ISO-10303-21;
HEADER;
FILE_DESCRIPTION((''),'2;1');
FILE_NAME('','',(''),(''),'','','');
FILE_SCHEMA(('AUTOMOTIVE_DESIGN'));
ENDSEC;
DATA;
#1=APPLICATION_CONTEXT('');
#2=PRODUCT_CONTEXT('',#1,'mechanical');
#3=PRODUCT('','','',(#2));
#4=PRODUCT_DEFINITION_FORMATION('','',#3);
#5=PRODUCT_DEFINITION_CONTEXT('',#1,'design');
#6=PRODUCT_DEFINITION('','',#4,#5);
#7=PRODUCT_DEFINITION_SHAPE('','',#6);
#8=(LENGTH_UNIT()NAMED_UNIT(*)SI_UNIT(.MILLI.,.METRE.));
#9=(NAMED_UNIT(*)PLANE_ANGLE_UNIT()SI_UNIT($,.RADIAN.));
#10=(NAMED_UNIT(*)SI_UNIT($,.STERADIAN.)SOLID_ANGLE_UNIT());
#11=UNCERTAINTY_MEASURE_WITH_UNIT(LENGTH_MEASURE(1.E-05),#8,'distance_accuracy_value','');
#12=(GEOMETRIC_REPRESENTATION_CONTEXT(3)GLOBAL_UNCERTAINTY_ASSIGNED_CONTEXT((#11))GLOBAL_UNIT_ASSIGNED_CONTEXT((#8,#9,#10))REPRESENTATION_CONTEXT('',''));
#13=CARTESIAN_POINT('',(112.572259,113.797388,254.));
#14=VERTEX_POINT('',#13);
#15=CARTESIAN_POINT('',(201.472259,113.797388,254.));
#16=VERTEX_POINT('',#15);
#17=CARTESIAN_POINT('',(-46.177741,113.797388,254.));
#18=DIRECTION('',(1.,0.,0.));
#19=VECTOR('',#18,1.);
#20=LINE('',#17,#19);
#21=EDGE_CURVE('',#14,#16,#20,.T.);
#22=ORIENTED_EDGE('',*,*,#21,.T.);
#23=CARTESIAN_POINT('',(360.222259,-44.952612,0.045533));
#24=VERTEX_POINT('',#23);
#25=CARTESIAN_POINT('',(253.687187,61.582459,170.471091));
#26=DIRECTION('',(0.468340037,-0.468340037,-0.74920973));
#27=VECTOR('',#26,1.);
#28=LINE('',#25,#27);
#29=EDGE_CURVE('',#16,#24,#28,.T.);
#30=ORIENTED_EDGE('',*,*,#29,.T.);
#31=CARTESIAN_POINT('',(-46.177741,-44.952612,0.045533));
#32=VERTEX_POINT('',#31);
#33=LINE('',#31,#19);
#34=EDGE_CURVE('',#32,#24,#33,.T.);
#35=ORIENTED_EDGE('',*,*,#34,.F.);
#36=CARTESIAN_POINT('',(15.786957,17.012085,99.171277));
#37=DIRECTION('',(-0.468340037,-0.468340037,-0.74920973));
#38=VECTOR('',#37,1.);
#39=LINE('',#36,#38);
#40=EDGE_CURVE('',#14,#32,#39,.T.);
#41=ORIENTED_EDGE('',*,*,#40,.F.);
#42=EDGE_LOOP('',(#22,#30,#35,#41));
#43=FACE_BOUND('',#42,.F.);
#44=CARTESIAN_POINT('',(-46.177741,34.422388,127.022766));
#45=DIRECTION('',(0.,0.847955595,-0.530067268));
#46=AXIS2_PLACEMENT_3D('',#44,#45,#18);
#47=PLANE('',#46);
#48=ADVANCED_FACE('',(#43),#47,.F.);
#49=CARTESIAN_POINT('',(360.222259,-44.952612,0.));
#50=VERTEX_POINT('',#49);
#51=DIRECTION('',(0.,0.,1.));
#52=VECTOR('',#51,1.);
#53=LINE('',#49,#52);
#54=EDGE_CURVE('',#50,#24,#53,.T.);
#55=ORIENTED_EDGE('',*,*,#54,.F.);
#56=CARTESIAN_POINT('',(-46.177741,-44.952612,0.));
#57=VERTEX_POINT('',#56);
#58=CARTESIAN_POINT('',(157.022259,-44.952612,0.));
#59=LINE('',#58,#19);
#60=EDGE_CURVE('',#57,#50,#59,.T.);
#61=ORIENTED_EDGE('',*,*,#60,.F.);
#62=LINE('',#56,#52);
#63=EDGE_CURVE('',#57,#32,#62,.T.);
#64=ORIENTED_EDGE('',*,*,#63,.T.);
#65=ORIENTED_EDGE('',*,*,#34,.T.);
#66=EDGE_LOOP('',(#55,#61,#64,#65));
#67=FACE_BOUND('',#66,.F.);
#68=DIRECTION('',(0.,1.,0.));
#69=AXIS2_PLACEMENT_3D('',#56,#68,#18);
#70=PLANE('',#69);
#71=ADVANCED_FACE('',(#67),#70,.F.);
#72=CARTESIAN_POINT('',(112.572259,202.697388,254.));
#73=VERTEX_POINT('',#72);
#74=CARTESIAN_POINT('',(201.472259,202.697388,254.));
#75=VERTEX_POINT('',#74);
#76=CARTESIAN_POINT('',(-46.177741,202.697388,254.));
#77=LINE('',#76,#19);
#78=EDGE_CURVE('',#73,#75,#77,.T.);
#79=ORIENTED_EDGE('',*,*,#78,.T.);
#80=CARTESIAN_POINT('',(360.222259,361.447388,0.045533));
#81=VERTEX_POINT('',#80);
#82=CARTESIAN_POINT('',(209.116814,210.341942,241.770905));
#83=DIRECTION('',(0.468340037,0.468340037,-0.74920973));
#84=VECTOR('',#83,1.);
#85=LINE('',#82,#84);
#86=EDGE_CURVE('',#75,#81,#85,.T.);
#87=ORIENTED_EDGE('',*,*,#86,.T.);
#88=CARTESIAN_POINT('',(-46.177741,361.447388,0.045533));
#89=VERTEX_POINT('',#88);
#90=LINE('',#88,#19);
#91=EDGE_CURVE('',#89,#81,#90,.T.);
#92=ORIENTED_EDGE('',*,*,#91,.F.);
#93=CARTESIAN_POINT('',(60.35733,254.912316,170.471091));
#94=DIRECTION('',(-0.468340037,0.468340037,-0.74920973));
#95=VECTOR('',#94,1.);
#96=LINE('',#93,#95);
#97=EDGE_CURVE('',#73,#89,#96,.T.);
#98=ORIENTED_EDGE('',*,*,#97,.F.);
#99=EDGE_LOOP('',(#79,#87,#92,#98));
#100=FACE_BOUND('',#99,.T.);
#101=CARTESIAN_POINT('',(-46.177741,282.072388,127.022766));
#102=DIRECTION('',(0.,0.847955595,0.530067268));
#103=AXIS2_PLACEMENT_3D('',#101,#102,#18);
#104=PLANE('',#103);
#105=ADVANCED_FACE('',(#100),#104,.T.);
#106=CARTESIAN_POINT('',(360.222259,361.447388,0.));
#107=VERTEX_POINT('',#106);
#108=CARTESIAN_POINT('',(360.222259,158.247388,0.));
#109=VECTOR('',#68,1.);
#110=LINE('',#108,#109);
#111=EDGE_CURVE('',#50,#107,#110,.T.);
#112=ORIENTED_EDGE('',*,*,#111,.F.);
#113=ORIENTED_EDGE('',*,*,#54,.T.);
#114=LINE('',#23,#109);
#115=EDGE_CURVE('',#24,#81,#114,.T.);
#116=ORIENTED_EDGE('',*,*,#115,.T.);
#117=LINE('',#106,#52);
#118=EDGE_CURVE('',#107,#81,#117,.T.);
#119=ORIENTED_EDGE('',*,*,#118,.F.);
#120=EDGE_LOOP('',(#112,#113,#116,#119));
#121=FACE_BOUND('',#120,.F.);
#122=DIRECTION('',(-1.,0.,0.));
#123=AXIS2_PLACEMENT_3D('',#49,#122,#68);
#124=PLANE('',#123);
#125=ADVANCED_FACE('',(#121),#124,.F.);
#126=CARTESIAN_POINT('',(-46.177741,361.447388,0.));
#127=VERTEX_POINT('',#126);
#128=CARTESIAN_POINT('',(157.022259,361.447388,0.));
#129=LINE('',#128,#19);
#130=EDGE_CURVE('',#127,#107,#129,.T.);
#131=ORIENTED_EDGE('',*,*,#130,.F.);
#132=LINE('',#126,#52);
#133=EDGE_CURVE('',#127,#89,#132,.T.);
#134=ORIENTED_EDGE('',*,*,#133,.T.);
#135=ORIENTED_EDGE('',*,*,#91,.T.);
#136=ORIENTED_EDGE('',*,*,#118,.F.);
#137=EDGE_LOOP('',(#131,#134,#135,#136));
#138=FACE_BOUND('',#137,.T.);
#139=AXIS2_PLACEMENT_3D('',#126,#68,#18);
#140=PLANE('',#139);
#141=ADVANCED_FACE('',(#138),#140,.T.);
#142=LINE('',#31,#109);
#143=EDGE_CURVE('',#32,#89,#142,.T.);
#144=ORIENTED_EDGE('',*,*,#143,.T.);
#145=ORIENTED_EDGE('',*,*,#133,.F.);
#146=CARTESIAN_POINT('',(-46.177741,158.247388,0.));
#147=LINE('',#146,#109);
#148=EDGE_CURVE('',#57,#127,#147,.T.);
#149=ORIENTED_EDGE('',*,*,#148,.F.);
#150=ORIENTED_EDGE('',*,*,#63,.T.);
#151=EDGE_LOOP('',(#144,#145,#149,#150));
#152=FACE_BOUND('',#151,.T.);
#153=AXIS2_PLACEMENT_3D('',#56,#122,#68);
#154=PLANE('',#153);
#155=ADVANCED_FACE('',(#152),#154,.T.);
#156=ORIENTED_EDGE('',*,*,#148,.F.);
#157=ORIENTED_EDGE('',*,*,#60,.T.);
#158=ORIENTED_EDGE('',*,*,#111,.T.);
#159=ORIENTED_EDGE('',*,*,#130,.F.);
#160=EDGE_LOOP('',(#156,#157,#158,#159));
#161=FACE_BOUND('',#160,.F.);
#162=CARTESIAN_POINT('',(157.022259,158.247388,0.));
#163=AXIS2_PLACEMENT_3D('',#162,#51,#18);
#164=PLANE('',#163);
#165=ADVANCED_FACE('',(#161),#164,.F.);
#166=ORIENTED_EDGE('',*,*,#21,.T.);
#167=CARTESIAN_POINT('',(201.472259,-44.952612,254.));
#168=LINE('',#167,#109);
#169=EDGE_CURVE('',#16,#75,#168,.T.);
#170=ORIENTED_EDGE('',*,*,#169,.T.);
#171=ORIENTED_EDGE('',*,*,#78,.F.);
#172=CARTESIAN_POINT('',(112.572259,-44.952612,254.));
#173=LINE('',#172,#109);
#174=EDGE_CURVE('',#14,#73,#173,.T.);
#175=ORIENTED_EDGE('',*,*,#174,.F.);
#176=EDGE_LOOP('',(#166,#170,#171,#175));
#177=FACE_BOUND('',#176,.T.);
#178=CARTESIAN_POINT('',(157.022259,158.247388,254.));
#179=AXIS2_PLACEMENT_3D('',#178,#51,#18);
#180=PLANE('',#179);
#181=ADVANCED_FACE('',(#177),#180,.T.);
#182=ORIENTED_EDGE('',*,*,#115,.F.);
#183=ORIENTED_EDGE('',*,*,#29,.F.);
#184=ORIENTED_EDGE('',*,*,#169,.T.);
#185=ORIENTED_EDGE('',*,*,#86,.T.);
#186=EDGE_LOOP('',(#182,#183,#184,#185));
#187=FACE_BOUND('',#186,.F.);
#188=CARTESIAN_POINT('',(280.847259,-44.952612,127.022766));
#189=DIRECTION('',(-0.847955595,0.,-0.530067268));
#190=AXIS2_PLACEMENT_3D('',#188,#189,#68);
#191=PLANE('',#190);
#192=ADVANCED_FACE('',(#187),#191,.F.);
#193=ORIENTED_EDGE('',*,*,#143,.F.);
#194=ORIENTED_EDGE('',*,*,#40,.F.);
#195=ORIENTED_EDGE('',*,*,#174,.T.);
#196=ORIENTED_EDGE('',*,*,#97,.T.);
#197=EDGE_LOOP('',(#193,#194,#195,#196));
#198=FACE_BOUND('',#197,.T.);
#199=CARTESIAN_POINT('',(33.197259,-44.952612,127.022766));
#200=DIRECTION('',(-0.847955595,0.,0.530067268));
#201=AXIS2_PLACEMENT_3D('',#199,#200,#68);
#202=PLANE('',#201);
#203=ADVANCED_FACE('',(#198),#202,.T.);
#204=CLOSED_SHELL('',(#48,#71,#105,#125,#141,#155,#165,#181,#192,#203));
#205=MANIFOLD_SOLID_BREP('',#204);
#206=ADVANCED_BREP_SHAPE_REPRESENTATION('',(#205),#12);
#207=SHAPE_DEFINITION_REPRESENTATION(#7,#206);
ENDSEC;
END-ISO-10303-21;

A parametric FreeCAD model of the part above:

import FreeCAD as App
import Part
import Sketcher
Q = App.Units.Quantity


def edges_at(feature, points):
    """Names of the edges that pass closest to the given points."""
    edges = feature.Shape.Edges
    near = lambda p: min(range(len(edges)), key=lambda i: edges[i].distToShape(Part.Vertex(*p))[0])
    return sorted({f"Edge{near(p) + 1}" for p in points})

doc = App.newDocument("Part")
body = doc.addObject("PartDesign::Body", "Body")

sketch1 = doc.addObject("Sketcher::SketchObject", "Sketch")
body.addObject(sketch1)
sketch1.AttachmentSupport = (doc.XY_Plane, [""])
sketch1.MapMode = "FlatFace"
sketch1.addGeometry(Part.LineSegment(App.Vector(-46.177741, 361.447388, 0), App.Vector(-46.177741, -44.952612, 0)), False)
sketch1.addGeometry(Part.LineSegment(App.Vector(-46.177741, -44.952612, 0), App.Vector(360.222259, -44.952612, 0)), False)
sketch1.addGeometry(Part.LineSegment(App.Vector(360.222259, -44.952612, 0), App.Vector(360.222259, 361.447388, 0)), False)
sketch1.addGeometry(Part.LineSegment(App.Vector(360.222259, 361.447388, 0), App.Vector(-46.177741, 361.447388, 0)), False)
sketch1.addConstraint(Sketcher.Constraint("Coincident", 0, 2, 1, 1))
sketch1.addConstraint(Sketcher.Constraint("Coincident", 1, 2, 2, 1))
sketch1.addConstraint(Sketcher.Constraint("Coincident", 2, 2, 3, 1))
sketch1.addConstraint(Sketcher.Constraint("Coincident", 3, 2, 0, 1))
sketch1.addConstraint(Sketcher.Constraint("Vertical", 0))
sketch1.addConstraint(Sketcher.Constraint("Horizontal", 1))
sketch1.addConstraint(Sketcher.Constraint("Vertical", 2))
sketch1.addConstraint(Sketcher.Constraint("Horizontal", 3))
sketch1.addConstraint(Sketcher.Constraint("Equal", 3, 0))
sketch1.addConstraint(Sketcher.Constraint("DistanceX", 1, 1, 1, 2, Q("16 in")))
sketch1.addConstraint(Sketcher.Constraint("DistanceX", 0, 2, -1, 1, 46.177741))
sketch1.addConstraint(Sketcher.Constraint("DistanceY", 0, 2, -1, 1, 44.952612))
pad1 = doc.addObject("PartDesign::Pad", "Pad")
body.addObject(pad1)
pad1.Profile = sketch1
pad1.Length = Q("10 in")
doc.recompute()

chamfer = doc.addObject("PartDesign::Chamfer", "Chamfer")
body.addObject(chamfer)
chamfer.Base = (pad1, edges_at(pad1, [
    (-46.178, 158.247, 254),
    (157.022, 361.447, 254),
    (360.222, 158.247, 254),
    (157.022, -44.953, 254),
]))
chamfer.ChamferType = "Two distances"
chamfer.Size = Q("6.25 in")
chamfer.Size2 = 253.954467
chamfer.FlipDirection = True

doc.recompute()
